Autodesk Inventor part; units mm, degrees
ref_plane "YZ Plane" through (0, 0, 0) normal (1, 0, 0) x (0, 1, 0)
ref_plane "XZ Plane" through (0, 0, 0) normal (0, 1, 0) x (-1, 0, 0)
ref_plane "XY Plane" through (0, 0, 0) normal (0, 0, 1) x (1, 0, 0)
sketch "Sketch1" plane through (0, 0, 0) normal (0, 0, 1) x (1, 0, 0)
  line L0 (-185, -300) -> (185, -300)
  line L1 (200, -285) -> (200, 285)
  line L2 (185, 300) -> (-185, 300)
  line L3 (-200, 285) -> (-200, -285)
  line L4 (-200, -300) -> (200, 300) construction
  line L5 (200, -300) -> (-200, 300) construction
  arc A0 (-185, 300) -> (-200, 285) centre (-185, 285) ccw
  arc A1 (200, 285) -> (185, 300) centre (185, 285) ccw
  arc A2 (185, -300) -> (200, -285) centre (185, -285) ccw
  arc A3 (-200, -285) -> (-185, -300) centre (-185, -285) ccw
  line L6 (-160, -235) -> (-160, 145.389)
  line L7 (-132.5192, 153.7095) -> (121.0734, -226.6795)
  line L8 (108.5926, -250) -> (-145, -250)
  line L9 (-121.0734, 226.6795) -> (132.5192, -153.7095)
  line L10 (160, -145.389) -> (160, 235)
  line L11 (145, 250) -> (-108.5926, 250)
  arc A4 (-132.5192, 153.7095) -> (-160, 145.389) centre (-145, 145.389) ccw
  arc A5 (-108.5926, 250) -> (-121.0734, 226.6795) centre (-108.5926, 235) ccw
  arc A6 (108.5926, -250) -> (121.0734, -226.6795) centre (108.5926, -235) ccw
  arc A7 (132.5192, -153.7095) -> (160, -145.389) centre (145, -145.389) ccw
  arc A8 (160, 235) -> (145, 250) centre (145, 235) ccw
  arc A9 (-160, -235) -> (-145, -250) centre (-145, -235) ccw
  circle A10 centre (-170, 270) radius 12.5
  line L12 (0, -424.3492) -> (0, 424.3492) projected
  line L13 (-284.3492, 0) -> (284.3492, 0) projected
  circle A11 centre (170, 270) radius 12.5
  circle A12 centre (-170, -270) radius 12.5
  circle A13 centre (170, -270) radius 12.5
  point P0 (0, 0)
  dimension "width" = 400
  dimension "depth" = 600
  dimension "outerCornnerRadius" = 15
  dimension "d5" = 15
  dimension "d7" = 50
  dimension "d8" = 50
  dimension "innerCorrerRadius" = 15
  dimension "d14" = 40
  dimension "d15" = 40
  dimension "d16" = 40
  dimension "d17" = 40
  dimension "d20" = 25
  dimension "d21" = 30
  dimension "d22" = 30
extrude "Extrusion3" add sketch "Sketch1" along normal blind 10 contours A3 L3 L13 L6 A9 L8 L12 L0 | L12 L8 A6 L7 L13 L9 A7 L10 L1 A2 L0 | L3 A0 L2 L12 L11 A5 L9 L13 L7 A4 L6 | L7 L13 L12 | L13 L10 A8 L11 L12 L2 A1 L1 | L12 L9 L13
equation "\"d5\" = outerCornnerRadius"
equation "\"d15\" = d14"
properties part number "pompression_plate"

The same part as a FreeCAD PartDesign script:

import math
import FreeCAD as App
import Part
import Sketcher

V = App.Vector
Q = App.Units.Quantity

doc = App.newDocument("Part")
params = doc.addObject("Spreadsheet::Sheet", "Params")
for row, (alias, value) in enumerate([
    ("sketch1_diameter", "25 mm"),
    ("sketch1_radius", "15 mm"),
    ("sketch1_width", "370 mm"),
    ("sketch1_height", "570 mm"),
    ("pad1_length", "10 mm"),
], start=1):
    params.set(f"A{row}", alias)
    params.set(f"B{row}", "=" + value)
    params.setAlias(f"B{row}", alias)

body = doc.addObject("PartDesign::Body", "Body")

sketch1 = body.newObject("Sketcher::SketchObject", "Sketch")
sketch1.AttachmentSupport = (doc.getObject("XY_Plane"), [""])
sketch1.MapMode = "FlatFace"
sketch1.addGeometry(Part.ArcOfCircle(Part.Circle(V(-185, -285, 0), V(0, 0, 1), 15), math.radians(180), math.radians(270)), False)
sketch1.addGeometry(Part.LineSegment(V(-185, -300, 0), V(185, -300, 0)), False)
sketch1.addGeometry(Part.ArcOfCircle(Part.Circle(V(185, -285, 0), V(0, 0, 1), 15), math.radians(-90), math.radians(0)), False)
sketch1.addGeometry(Part.LineSegment(V(200, -285, 0), V(200, 285, 0)), False)
sketch1.addGeometry(Part.ArcOfCircle(Part.Circle(V(185, 285, 0), V(0, 0, 1), 15), math.radians(0), math.radians(90)), False)
sketch1.addGeometry(Part.LineSegment(V(185, 300, 0), V(-185, 300, 0)), False)
sketch1.addGeometry(Part.ArcOfCircle(Part.Circle(V(-185, 285, 0), V(0, 0, 1), 15), math.radians(90), math.radians(180)), False)
sketch1.addGeometry(Part.LineSegment(V(-200, 285, 0), V(-200, -285, 0)), False)
sketch1.addGeometry(Part.LineSegment(V(-160, -235, 0), V(-160, 145, 0)), False)
sketch1.addGeometry(Part.ArcOfCircle(Part.Circle(V(-145, 145, 0), V(0, 0, 1), 15), math.radians(34), math.radians(180)), False)
sketch1.addGeometry(Part.LineSegment(V(-133, 154, 0), V(121, -227, 0)), False)
sketch1.addGeometry(Part.ArcOfCircle(Part.Circle(V(109, -235, 0), V(0, 0, 1), 15), math.radians(-90), math.radians(34)), False)
sketch1.addGeometry(Part.LineSegment(V(109, -250, 0), V(-145, -250, 0)), False)
sketch1.addGeometry(Part.ArcOfCircle(Part.Circle(V(-145, -235, 0), V(0, 0, 1), 15), math.radians(180), math.radians(270)), False)
sketch1.addGeometry(Part.Circle(V(-170, -270, 0), V(0, 0, 1), 12), False)
sketch1.addGeometry(Part.LineSegment(V(-109, 250, 0), V(145, 250, 0)), False)
sketch1.addGeometry(Part.ArcOfCircle(Part.Circle(V(145, 235, 0), V(0, 0, 1), 15), math.radians(0), math.radians(90)), False)
sketch1.addGeometry(Part.LineSegment(V(160, 235, 0), V(160, -145, 0)), False)
sketch1.addGeometry(Part.ArcOfCircle(Part.Circle(V(145, -145, 0), V(0, 0, 1), 15), math.radians(-146), math.radians(0)), False)
sketch1.addGeometry(Part.LineSegment(V(133, -154, 0), V(-121, 227, 0)), False)
sketch1.addGeometry(Part.ArcOfCircle(Part.Circle(V(-109, 235, 0), V(0, 0, 1), 15), math.radians(90), math.radians(214)), False)
sketch1.addGeometry(Part.Circle(V(-170, 270, 0), V(0, 0, 1), 12), False)
sketch1.addGeometry(Part.Circle(V(170, -270, 0), V(0, 0, 1), 12), False)
sketch1.addGeometry(Part.Circle(V(170, 270, 0), V(0, 0, 1), 12), False)
sketch1.addConstraint(Sketcher.Constraint("Tangent", 0, 2, 1, 1))
sketch1.addConstraint(Sketcher.Constraint("Tangent", 1, 2, 2, 1))
sketch1.addConstraint(Sketcher.Constraint("Tangent", 2, 2, 3, 1))
sketch1.addConstraint(Sketcher.Constraint("Tangent", 3, 2, 4, 1))
sketch1.addConstraint(Sketcher.Constraint("Tangent", 4, 2, 5, 1))
sketch1.addConstraint(Sketcher.Constraint("Tangent", 5, 2, 6, 1))
sketch1.addConstraint(Sketcher.Constraint("Tangent", 6, 2, 7, 1))
sketch1.addConstraint(Sketcher.Constraint("Tangent", 7, 2, 0, 1))
sketch1.addConstraint(Sketcher.Constraint("Tangent", 8, 2, 9, 2))
sketch1.addConstraint(Sketcher.Constraint("Tangent", 9, 1, 10, 1))
sketch1.addConstraint(Sketcher.Constraint("Tangent", 10, 2, 11, 2))
sketch1.addConstraint(Sketcher.Constraint("Tangent", 11, 1, 12, 1))
sketch1.addConstraint(Sketcher.Constraint("Tangent", 12, 2, 13, 2))
sketch1.addConstraint(Sketcher.Constraint("Tangent", 13, 1, 8, 1))
sketch1.addConstraint(Sketcher.Constraint("Tangent", 15, 2, 16, 2))
sketch1.addConstraint(Sketcher.Constraint("Tangent", 16, 1, 17, 1))
sketch1.addConstraint(Sketcher.Constraint("Tangent", 17, 2, 18, 2))
sketch1.addConstraint(Sketcher.Constraint("Tangent", 18, 1, 19, 1))
sketch1.addConstraint(Sketcher.Constraint("Tangent", 19, 2, 20, 2))
sketch1.addConstraint(Sketcher.Constraint("Tangent", 20, 1, 15, 1))
sketch1.addConstraint(Sketcher.Constraint("Horizontal", 1))
sketch1.addConstraint(Sketcher.Constraint("Vertical", 3))
sketch1.addConstraint(Sketcher.Constraint("Horizontal", 5))
sketch1.addConstraint(Sketcher.Constraint("Vertical", 7))
sketch1.addConstraint(Sketcher.Constraint("Vertical", 8))
sketch1.addConstraint(Sketcher.Constraint("Horizontal", 12))
sketch1.addConstraint(Sketcher.Constraint("Horizontal", 15))
sketch1.addConstraint(Sketcher.Constraint("Vertical", 17))
sketch1.addConstraint(Sketcher.Constraint("Equal", 0, 2))
sketch1.addConstraint(Sketcher.Constraint("Equal", 2, 4))
sketch1.addConstraint(Sketcher.Constraint("Equal", 4, 6))
sketch1.addConstraint(Sketcher.Constraint("Equal", 6, 9))
sketch1.addConstraint(Sketcher.Constraint("Equal", 9, 11))
sketch1.addConstraint(Sketcher.Constraint("Equal", 11, 13))
sketch1.addConstraint(Sketcher.Constraint("Equal", 13, 16))
sketch1.addConstraint(Sketcher.Constraint("Equal", 16, 18))
sketch1.addConstraint(Sketcher.Constraint("Equal", 18, 20))
sketch1.addConstraint(Sketcher.Constraint("Equal", 14, 21))
sketch1.addConstraint(Sketcher.Constraint("Equal", 21, 22))
sketch1.addConstraint(Sketcher.Constraint("Equal", 22, 23))
sketch1.addConstraint(Sketcher.Constraint("Symmetric", 0, 3, 4, 3, -1, 1))
sketch1.addConstraint(Sketcher.Constraint("Symmetric", 13, 3, 16, 3, -1, 1))
sketch1.addConstraint(Sketcher.Constraint("Symmetric", 21, 3, 22, 3, -1, 1))
sketch1.addConstraint(Sketcher.Constraint("Symmetric", 14, 3, 23, 3, -1, 1))
sketch1.addConstraint(Sketcher.Constraint("Symmetric", 10, 2, 19, 2, -1, 1))
sketch1.addConstraint(Sketcher.Constraint("Symmetric", 14, 3, 22, 3, -2))
sketch1.addConstraint(Sketcher.Constraint("Diameter", 14, 25.0))
sketch1.addConstraint(Sketcher.Constraint("Radius", 0, 15.0))
sketch1.addConstraint(Sketcher.Constraint("DistanceX", 6, 3, 9, 3, 40.0))
sketch1.addConstraint(Sketcher.Constraint("DistanceY", 2, 3, 11, 3, 50.0))
sketch1.addConstraint(Sketcher.Constraint("DistanceX", 0, 3, 14, 3, 15.0))
sketch1.addConstraint(Sketcher.Constraint("DistanceY", 0, 3, 14, 3, 15.0))
sketch1.addConstraint(Sketcher.Constraint("DistanceX", 1, 1, 1, 2, 370.0))
sketch1.addConstraint(Sketcher.Constraint("DistanceY", 3, 1, 3, 2, 570.0))
sketch1.addConstraint(Sketcher.Constraint("Angle", 10, Q("-56.31 deg")))
sketch1.addConstraint(Sketcher.Constraint("DistanceY", 8, 1, 8, 2, 380.389))
sketch1.setExpression("Constraints[46]", "Params.sketch1_diameter")
sketch1.setExpression("Constraints[47]", "Params.sketch1_radius")
sketch1.setExpression("Constraints[52]", "Params.sketch1_width")
sketch1.setExpression("Constraints[53]", "Params.sketch1_height")
pad1 = body.newObject("PartDesign::Pad", "Pad")
pad1.Profile = sketch1
pad1.setExpression("Length", "Params.pad1_length")

doc.recompute()
